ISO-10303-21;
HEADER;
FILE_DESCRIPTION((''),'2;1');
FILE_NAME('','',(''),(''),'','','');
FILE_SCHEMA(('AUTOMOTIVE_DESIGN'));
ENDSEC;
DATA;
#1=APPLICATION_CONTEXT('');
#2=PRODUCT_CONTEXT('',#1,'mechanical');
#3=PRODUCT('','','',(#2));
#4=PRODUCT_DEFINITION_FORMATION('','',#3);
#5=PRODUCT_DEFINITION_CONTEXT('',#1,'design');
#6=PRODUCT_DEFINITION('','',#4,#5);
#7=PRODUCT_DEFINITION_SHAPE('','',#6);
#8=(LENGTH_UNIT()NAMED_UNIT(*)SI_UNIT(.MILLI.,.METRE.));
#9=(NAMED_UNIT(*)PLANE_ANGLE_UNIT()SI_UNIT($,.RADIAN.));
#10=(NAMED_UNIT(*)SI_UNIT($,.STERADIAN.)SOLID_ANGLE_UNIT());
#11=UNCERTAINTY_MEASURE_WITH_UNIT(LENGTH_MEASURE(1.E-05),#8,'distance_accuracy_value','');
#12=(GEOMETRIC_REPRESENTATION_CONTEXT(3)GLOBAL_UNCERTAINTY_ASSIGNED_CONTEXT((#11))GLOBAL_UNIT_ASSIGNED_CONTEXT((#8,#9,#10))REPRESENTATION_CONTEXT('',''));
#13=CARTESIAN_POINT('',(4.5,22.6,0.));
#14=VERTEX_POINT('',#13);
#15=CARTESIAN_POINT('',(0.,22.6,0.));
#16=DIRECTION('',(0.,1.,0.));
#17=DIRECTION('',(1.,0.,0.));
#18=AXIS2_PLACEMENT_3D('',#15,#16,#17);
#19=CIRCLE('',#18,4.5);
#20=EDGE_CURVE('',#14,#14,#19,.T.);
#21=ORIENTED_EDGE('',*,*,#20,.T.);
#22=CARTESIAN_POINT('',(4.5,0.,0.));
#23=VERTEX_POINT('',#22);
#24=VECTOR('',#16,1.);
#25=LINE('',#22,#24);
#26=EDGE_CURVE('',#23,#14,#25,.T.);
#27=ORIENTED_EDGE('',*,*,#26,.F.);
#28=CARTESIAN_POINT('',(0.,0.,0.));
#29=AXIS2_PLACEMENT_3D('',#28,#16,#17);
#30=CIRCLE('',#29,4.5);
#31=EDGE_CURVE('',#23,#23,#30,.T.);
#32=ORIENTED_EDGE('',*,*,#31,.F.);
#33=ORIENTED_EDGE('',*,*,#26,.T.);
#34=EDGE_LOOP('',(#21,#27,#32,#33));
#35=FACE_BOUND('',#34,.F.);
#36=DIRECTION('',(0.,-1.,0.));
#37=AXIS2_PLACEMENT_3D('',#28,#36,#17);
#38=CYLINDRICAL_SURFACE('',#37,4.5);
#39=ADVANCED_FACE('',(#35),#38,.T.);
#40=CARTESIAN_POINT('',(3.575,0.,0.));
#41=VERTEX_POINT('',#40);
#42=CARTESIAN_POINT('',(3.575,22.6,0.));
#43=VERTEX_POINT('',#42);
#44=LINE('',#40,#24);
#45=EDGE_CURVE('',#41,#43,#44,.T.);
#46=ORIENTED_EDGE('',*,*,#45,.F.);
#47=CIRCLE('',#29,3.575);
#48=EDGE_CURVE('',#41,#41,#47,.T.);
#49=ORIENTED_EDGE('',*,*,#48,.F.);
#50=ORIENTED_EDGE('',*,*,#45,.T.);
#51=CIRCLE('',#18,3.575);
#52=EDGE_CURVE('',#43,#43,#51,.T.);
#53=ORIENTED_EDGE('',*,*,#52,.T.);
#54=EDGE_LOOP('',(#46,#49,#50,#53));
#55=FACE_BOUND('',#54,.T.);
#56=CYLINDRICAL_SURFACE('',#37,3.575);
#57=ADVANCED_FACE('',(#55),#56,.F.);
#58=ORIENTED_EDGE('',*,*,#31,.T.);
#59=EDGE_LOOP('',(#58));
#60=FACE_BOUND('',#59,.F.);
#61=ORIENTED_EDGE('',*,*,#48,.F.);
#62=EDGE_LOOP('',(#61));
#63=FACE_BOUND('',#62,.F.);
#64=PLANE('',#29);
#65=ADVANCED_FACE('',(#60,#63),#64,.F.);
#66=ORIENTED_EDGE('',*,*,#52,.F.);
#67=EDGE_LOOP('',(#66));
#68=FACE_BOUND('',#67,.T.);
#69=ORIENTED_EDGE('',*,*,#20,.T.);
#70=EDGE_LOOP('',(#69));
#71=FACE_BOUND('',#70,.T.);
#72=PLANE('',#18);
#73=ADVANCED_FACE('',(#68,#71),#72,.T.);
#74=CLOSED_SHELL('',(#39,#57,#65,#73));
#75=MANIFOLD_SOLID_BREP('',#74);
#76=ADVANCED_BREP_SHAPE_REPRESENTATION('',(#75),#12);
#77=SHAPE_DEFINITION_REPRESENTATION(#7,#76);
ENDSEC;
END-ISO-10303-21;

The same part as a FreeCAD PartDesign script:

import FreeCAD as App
import Part
import Sketcher
from FreeCAD import Vector
Q = App.Units.Quantity

doc = App.newDocument("Part")
body = doc.addObject("PartDesign::Body", "Body")

# Sketch on XZ plane
sketch1 = body.newObject("Sketcher::SketchObject", "Sketch")
sketch1.AttachmentSupport = (doc.getObject("XZ_Plane"), [""])
sketch1.MapMode = "FlatFace"
sketch1.addGeometry(Part.Circle(Vector(0, 0, 0), Vector(0, 0, 1), 4.5), False)
sketch1.addGeometry(Part.Circle(Vector(0, 0, 0), Vector(0, 0, 1), 3.575), False)
sketch1.addConstraint(Sketcher.Constraint("Coincident", 0, 3, -1, 1))
sketch1.addConstraint(Sketcher.Constraint("Coincident", 1, 3, -1, 1))
sketch1.addConstraint(Sketcher.Constraint("Diameter", 0, Q("9 mm")))
sketch1.addConstraint(Sketcher.Constraint("Diameter", 1, Q("7.15 mm")))
pad1 = body.newObject("PartDesign::Pad", "Pad")
pad1.Profile = sketch1
pad1.Length = 22.6
pad1.Reversed = True

doc.recompute()
